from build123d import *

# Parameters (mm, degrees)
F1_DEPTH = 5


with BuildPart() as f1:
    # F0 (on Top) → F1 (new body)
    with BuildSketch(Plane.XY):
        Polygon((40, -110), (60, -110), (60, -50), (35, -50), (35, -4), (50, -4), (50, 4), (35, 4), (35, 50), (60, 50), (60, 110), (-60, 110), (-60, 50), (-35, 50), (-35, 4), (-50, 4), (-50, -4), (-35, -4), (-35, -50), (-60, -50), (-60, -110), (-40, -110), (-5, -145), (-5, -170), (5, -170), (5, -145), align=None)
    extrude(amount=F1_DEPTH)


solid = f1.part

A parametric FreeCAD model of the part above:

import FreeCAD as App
import Part
import Sketcher
from FreeCAD import Vector


def add_polygon(sketch, points):
    """Adds a closed chain of lines whose ends are joined by coincident constraints."""
    first, n = sketch.GeometryCount, len(points)
    for a, b in zip(points, points[1:] + points[:1]):
        sketch.addGeometry(Part.LineSegment(App.Vector(*a, 0), App.Vector(*b, 0)), False)
    for i in range(n):
        sketch.addConstraint(Sketcher.Constraint("Coincident", first + i, 2, first + (i + 1) % n, 1))

doc = App.newDocument("Part")
body = doc.addObject("PartDesign::Body", "Body")

# Sketch on XY plane
sketch1 = doc.addObject("Sketcher::SketchObject", "Sketch")
body.addObject(sketch1)
sketch1.AttachmentSupport = (doc.XY_Plane, [""])
sketch1.MapMode = "FlatFace"
add_polygon(sketch1, [(40, -110), (60, -110), (60, -50), (35, -50), (35, -4), (50, -4), (50, 4), (35, 4), (35, 50), (60, 50), (60, 110), (-60, 110), (-60, 50), (-35, 50), (-35, 4), (-50, 4), (-50, -4), (-35, -4), (-35, -50), (-60, -50), (-60, -110), (-40, -110), (-5, -145), (-5, -170), (5, -170), (5, -145)])  # lines 0-25
sketch1.addConstraint([
    Sketcher.Constraint("Horizontal", 0),
    Sketcher.Constraint("Vertical", 1),
    Sketcher.Constraint("Horizontal", 2),
    Sketcher.Constraint("Vertical", 3),
    Sketcher.Constraint("Horizontal", 4),
    Sketcher.Constraint("Vertical", 5),
    Sketcher.Constraint("Horizontal", 6),
    Sketcher.Constraint("Vertical", 7),
    Sketcher.Constraint("Horizontal", 8),
    Sketcher.Constraint("Vertical", 9),
    Sketcher.Constraint("Horizontal", 10),
    Sketcher.Constraint("Vertical", 11),
    Sketcher.Constraint("Horizontal", 12),
    Sketcher.Constraint("Vertical", 13),
    Sketcher.Constraint("Horizontal", 14),
    Sketcher.Constraint("Vertical", 15),
    Sketcher.Constraint("Horizontal", 16),
    Sketcher.Constraint("Vertical", 17),
    Sketcher.Constraint("Horizontal", 18),
    Sketcher.Constraint("Vertical", 19),
    Sketcher.Constraint("Horizontal", 20),
    Sketcher.Constraint("Vertical", 22),
    Sketcher.Constraint("Horizontal", 23),
    Sketcher.Constraint("Vertical", 24),
    Sketcher.Constraint("Symmetric", 0, 2, 10, 2, -1, 1),
    Sketcher.Constraint("Symmetric", 2, 2, 12, 2, -1, 1),
    Sketcher.Constraint("Symmetric", 4, 2, 14, 2, -1, 1),
    Sketcher.Constraint("Symmetric", 6, 2, 16, 2, -1, 1),
    Sketcher.Constraint("Symmetric", 8, 2, 18, 2, -1, 1),
    Sketcher.Constraint("Symmetric", 8, 2, 11, 2, -2),
    Sketcher.Constraint("Symmetric", 6, 2, 13, 2, -2),
    Sketcher.Constraint("Symmetric", 21, 2, 24, 2, -2),
    Sketcher.Constraint("Symmetric", 20, 2, 25, 2, -2),
    Sketcher.Constraint("Perpendicular", 21, 25),
    Sketcher.Constraint("Equal", 18, 22),
    Sketcher.Constraint("DistanceX", 0, 1, 0, 2, 20.0),
    Sketcher.Constraint("DistanceX", 2, 2, 2, 1, 25.0),
    Sketcher.Constraint("DistanceX", 4, 1, 4, 2, 15.0),
    Sketcher.Constraint("DistanceX", 10, 2, 10, 1, 120.0),
    Sketcher.Constraint("DistanceX", 23, 1, 23, 2, 10.0),
    Sketcher.Constraint("DistanceY", 1, 1, 1, 2, 60.0),
    Sketcher.Constraint("DistanceY", 3, 1, 3, 2, 46.0),
    Sketcher.Constraint("DistanceY", 5, 1, 5, 2, 8.0),
])
pad1 = doc.addObject("PartDesign::Pad", "Pad")
body.addObject(pad1)
pad1.Profile = sketch1
pad1.Length = 5

doc.recompute()
